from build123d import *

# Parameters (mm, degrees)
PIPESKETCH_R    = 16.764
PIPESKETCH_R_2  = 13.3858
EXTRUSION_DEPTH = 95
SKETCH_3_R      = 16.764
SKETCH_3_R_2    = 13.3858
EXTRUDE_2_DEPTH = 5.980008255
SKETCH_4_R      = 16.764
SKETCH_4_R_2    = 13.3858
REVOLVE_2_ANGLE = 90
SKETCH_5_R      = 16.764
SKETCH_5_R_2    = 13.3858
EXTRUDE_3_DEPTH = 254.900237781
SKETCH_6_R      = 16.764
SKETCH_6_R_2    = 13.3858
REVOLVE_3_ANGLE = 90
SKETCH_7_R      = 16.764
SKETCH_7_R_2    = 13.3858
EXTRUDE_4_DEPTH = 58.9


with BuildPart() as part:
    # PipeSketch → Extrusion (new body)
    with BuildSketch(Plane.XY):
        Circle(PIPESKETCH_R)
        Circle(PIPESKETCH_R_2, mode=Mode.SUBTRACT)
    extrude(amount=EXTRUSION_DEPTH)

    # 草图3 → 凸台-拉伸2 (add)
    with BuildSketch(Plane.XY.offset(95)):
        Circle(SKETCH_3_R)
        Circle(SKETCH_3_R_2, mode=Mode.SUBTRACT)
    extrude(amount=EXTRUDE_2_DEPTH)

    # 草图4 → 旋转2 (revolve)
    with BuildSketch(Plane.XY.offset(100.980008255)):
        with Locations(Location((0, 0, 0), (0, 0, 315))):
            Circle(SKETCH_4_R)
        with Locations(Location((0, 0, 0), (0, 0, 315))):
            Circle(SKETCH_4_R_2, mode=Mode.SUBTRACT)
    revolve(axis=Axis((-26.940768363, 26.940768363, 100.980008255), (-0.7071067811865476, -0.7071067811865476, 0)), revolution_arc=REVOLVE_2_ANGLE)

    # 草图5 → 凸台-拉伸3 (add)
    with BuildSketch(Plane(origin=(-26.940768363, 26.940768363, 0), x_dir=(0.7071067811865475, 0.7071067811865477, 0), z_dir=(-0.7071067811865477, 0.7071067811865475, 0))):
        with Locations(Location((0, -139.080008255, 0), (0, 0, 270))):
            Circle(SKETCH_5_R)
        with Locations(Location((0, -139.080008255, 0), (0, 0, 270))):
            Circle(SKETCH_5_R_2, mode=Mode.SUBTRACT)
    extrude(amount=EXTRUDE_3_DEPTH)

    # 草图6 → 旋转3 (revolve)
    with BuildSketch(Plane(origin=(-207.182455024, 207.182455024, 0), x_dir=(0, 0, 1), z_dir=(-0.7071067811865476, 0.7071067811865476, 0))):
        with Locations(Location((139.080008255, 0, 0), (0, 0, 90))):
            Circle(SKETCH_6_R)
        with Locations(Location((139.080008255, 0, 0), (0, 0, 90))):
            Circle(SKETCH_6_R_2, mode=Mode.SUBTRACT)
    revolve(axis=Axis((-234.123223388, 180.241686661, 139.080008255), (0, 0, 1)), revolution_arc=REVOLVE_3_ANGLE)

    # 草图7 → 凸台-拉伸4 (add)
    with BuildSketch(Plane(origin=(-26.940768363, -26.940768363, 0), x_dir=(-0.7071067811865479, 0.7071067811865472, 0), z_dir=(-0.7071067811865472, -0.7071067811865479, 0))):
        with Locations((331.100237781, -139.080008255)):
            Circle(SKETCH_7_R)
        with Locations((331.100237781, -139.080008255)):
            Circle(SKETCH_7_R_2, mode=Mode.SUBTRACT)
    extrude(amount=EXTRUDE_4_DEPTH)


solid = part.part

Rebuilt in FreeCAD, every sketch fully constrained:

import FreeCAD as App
import Part
import Sketcher
Q = App.Units.Quantity

doc = App.newDocument("Part")
body = doc.addObject("PartDesign::Body", "Body")

sketch1 = doc.addObject("Sketcher::SketchObject", "Sketch")
body.addObject(sketch1)
sketch1.AttachmentSupport = (doc.XY_Plane, [""])
sketch1.MapMode = "FlatFace"
sketch1.addGeometry(Part.Circle(App.Vector(0, 0, 0), App.Vector(0, 0, 1), 17), False)
sketch1.addGeometry(Part.Circle(App.Vector(0, 0, 0), App.Vector(0, 0, 1), 13), False)
sketch1.addConstraint(Sketcher.Constraint("Coincident", 0, 3, -1, 1))
sketch1.addConstraint(Sketcher.Constraint("Coincident", 1, 3, -1, 1))
sketch1.addConstraint(Sketcher.Constraint("Diameter", 0, 33.528))
sketch1.addConstraint(Sketcher.Constraint("Diameter", 1, 26.7716))
pad1 = doc.addObject("PartDesign::Pad", "Pad")
body.addObject(pad1)
pad1.Profile = sketch1
pad1.Length = 95

sketch2 = doc.addObject("Sketcher::SketchObject", "Sketch001")
body.addObject(sketch2)
sketch2.AttachmentSupport = (doc.XY_Plane, [""])
sketch2.MapMode = "FlatFace"
sketch2.AttachmentOffset = App.Placement(App.Vector(0, 0, 95), App.Rotation())
sketch2.addGeometry(Part.Circle(App.Vector(0, 0, 0), App.Vector(0, 0, 1), 17), False)
sketch2.addGeometry(Part.Circle(App.Vector(0, 0, 0), App.Vector(0, 0, 1), 13), False)
sketch2.addConstraint(Sketcher.Constraint("Coincident", 0, 3, -1, 1))
sketch2.addConstraint(Sketcher.Constraint("Coincident", 1, 3, -1, 1))
sketch2.addConstraint(Sketcher.Constraint("Diameter", 0, 33.528))
sketch2.addConstraint(Sketcher.Constraint("Diameter", 1, 26.7716))
pad2 = doc.addObject("PartDesign::Pad", "Pad001")
body.addObject(pad2)
pad2.Profile = sketch2
pad2.Length = 5.980008

sketch3 = doc.addObject("Sketcher::SketchObject", "Sketch002")
body.addObject(sketch3)
sketch3.AttachmentSupport = (doc.XY_Plane, [""])
sketch3.MapMode = "FlatFace"
sketch3.AttachmentOffset = App.Placement(App.Vector(0, 0, 100.980008), App.Rotation())
sketch3.addGeometry(Part.Circle(App.Vector(0, 0, 0), App.Vector(0, 0, 1), 17), False)
sketch3.addGeometry(Part.Circle(App.Vector(0, 0, 0), App.Vector(0, 0, 1), 13), False)
sketch3.addGeometry(Part.LineSegment(App.Vector(-27, 27, 0), App.Vector(-34, 20, 0)), True)
sketch3.addConstraint(Sketcher.Constraint("Coincident", 0, 3, -1, 1))
sketch3.addConstraint(Sketcher.Constraint("Coincident", 1, 3, -1, 1))
sketch3.addConstraint(Sketcher.Constraint("Angle", 2, Q("-135 deg")))
sketch3.addConstraint(Sketcher.Constraint("Distance", 2, 10.0))
sketch3.addConstraint(Sketcher.Constraint("Diameter", 0, 33.528))
sketch3.addConstraint(Sketcher.Constraint("Diameter", 1, 26.7716))
sketch3.addConstraint(Sketcher.Constraint("DistanceY", -1, 1, 2, 2, 19.869701))
sketch3.addConstraint(Sketcher.Constraint("DistanceX", 2, 1, -1, 1, 26.940768))
revolution = doc.addObject("PartDesign::Revolution", "Revolution")
body.addObject(revolution)
revolution.Profile = sketch3
revolution.ReferenceAxis = (sketch3, ["Axis0"])
revolution.Angle = 90

sketch4 = doc.addObject("Sketcher::SketchObject", "Sketch003")
body.addObject(sketch4)
sketch4.Placement = App.Placement(App.Vector(-26.940768, 26.940768, 0), App.Rotation(App.Vector(0.707106781, 0.707106781, 0), App.Vector(0, 0, -0.999999999), App.Vector(-0.707106781, 0.707106781, 0), "ZXY"))
sketch4.addGeometry(Part.Circle(App.Vector(0, -139, 0), App.Vector(0, 0, 1), 17), False)
sketch4.addGeometry(Part.Circle(App.Vector(0, -139, 0), App.Vector(0, 0, 1), 13), False)
sketch4.addConstraint(Sketcher.Constraint("Coincident", 1, 3, 0, 3))
sketch4.addConstraint(Sketcher.Constraint("PointOnObject", 0, 3, -2))
sketch4.addConstraint(Sketcher.Constraint("Diameter", 0, 33.528))
sketch4.addConstraint(Sketcher.Constraint("Diameter", 1, 26.7716))
sketch4.addConstraint(Sketcher.Constraint("DistanceY", 0, 3, -1, 1, 139.080008))
pad3 = doc.addObject("PartDesign::Pad", "Pad002")
body.addObject(pad3)
pad3.Profile = sketch4
pad3.Length = 254.900238

sketch5 = doc.addObject("Sketcher::SketchObject", "Sketch004")
body.addObject(sketch5)
sketch5.Placement = App.Placement(App.Vector(-207.182455, 207.182455, 0), App.Rotation(App.Vector(0, 0, 1), App.Vector(0.707106781, 0.707106781, 0), App.Vector(-0.707106781, 0.707106781, 0), "ZXY"))
sketch5.addGeometry(Part.Circle(App.Vector(139, 0, 0), App.Vector(0, 0, 1), 17), False)
sketch5.addGeometry(Part.Circle(App.Vector(139, 0, 0), App.Vector(0, 0, 1), 13), False)
sketch5.addGeometry(Part.LineSegment(App.Vector(139, -38, 0), App.Vector(149, -38, 0)), True)
sketch5.addConstraint(Sketcher.Constraint("Horizontal", 2))
sketch5.addConstraint(Sketcher.Constraint("Coincident", 1, 3, 0, 3))
sketch5.addConstraint(Sketcher.Constraint("PointOnObject", 0, 3, -1))
sketch5.addConstraint(Sketcher.Constraint("Vertical", 1, 3, 2, 1))
sketch5.addConstraint(Sketcher.Constraint("DistanceX", 2, 1, 2, 2, 10.0))
sketch5.addConstraint(Sketcher.Constraint("Diameter", 0, 33.528))
sketch5.addConstraint(Sketcher.Constraint("Diameter", 1, 26.7716))
sketch5.addConstraint(Sketcher.Constraint("DistanceY", 2, 1, -1, 1, 38.1))
sketch5.addConstraint(Sketcher.Constraint("DistanceX", -1, 1, 0, 3, 139.080008))
revolution2 = doc.addObject("PartDesign::Revolution", "Revolution001")
body.addObject(revolution2)
revolution2.Profile = sketch5
revolution2.ReferenceAxis = (sketch5, ["Axis0"])
revolution2.Angle = 90

sketch6 = doc.addObject("Sketcher::SketchObject", "Sketch005")
body.addObject(sketch6)
sketch6.Placement = App.Placement(App.Vector(-26.940768, -26.940768, 0), App.Rotation(App.Vector(-0.707106781, 0.707106781, 0), App.Vector(0, 0, -0.999999999), App.Vector(-0.707106781, -0.707106781, 0), "ZXY"))
sketch6.addGeometry(Part.Circle(App.Vector(331, -139, 0), App.Vector(0, 0, 1), 17), False)
sketch6.addGeometry(Part.Circle(App.Vector(331, -139, 0), App.Vector(0, 0, 1), 13), False)
sketch6.addConstraint(Sketcher.Constraint("Coincident", 1, 3, 0, 3))
sketch6.addConstraint(Sketcher.Constraint("Diameter", 0, 33.528))
sketch6.addConstraint(Sketcher.Constraint("Diameter", 1, 26.7716))
sketch6.addConstraint(Sketcher.Constraint("DistanceY", 0, 3, -1, 1, 139.080008))
sketch6.addConstraint(Sketcher.Constraint("DistanceX", -1, 1, 0, 3, 331.100238))
pad4 = doc.addObject("PartDesign::Pad", "Pad003")
body.addObject(pad4)
pad4.Profile = sketch6
pad4.Length = 58.9

doc.recompute()
